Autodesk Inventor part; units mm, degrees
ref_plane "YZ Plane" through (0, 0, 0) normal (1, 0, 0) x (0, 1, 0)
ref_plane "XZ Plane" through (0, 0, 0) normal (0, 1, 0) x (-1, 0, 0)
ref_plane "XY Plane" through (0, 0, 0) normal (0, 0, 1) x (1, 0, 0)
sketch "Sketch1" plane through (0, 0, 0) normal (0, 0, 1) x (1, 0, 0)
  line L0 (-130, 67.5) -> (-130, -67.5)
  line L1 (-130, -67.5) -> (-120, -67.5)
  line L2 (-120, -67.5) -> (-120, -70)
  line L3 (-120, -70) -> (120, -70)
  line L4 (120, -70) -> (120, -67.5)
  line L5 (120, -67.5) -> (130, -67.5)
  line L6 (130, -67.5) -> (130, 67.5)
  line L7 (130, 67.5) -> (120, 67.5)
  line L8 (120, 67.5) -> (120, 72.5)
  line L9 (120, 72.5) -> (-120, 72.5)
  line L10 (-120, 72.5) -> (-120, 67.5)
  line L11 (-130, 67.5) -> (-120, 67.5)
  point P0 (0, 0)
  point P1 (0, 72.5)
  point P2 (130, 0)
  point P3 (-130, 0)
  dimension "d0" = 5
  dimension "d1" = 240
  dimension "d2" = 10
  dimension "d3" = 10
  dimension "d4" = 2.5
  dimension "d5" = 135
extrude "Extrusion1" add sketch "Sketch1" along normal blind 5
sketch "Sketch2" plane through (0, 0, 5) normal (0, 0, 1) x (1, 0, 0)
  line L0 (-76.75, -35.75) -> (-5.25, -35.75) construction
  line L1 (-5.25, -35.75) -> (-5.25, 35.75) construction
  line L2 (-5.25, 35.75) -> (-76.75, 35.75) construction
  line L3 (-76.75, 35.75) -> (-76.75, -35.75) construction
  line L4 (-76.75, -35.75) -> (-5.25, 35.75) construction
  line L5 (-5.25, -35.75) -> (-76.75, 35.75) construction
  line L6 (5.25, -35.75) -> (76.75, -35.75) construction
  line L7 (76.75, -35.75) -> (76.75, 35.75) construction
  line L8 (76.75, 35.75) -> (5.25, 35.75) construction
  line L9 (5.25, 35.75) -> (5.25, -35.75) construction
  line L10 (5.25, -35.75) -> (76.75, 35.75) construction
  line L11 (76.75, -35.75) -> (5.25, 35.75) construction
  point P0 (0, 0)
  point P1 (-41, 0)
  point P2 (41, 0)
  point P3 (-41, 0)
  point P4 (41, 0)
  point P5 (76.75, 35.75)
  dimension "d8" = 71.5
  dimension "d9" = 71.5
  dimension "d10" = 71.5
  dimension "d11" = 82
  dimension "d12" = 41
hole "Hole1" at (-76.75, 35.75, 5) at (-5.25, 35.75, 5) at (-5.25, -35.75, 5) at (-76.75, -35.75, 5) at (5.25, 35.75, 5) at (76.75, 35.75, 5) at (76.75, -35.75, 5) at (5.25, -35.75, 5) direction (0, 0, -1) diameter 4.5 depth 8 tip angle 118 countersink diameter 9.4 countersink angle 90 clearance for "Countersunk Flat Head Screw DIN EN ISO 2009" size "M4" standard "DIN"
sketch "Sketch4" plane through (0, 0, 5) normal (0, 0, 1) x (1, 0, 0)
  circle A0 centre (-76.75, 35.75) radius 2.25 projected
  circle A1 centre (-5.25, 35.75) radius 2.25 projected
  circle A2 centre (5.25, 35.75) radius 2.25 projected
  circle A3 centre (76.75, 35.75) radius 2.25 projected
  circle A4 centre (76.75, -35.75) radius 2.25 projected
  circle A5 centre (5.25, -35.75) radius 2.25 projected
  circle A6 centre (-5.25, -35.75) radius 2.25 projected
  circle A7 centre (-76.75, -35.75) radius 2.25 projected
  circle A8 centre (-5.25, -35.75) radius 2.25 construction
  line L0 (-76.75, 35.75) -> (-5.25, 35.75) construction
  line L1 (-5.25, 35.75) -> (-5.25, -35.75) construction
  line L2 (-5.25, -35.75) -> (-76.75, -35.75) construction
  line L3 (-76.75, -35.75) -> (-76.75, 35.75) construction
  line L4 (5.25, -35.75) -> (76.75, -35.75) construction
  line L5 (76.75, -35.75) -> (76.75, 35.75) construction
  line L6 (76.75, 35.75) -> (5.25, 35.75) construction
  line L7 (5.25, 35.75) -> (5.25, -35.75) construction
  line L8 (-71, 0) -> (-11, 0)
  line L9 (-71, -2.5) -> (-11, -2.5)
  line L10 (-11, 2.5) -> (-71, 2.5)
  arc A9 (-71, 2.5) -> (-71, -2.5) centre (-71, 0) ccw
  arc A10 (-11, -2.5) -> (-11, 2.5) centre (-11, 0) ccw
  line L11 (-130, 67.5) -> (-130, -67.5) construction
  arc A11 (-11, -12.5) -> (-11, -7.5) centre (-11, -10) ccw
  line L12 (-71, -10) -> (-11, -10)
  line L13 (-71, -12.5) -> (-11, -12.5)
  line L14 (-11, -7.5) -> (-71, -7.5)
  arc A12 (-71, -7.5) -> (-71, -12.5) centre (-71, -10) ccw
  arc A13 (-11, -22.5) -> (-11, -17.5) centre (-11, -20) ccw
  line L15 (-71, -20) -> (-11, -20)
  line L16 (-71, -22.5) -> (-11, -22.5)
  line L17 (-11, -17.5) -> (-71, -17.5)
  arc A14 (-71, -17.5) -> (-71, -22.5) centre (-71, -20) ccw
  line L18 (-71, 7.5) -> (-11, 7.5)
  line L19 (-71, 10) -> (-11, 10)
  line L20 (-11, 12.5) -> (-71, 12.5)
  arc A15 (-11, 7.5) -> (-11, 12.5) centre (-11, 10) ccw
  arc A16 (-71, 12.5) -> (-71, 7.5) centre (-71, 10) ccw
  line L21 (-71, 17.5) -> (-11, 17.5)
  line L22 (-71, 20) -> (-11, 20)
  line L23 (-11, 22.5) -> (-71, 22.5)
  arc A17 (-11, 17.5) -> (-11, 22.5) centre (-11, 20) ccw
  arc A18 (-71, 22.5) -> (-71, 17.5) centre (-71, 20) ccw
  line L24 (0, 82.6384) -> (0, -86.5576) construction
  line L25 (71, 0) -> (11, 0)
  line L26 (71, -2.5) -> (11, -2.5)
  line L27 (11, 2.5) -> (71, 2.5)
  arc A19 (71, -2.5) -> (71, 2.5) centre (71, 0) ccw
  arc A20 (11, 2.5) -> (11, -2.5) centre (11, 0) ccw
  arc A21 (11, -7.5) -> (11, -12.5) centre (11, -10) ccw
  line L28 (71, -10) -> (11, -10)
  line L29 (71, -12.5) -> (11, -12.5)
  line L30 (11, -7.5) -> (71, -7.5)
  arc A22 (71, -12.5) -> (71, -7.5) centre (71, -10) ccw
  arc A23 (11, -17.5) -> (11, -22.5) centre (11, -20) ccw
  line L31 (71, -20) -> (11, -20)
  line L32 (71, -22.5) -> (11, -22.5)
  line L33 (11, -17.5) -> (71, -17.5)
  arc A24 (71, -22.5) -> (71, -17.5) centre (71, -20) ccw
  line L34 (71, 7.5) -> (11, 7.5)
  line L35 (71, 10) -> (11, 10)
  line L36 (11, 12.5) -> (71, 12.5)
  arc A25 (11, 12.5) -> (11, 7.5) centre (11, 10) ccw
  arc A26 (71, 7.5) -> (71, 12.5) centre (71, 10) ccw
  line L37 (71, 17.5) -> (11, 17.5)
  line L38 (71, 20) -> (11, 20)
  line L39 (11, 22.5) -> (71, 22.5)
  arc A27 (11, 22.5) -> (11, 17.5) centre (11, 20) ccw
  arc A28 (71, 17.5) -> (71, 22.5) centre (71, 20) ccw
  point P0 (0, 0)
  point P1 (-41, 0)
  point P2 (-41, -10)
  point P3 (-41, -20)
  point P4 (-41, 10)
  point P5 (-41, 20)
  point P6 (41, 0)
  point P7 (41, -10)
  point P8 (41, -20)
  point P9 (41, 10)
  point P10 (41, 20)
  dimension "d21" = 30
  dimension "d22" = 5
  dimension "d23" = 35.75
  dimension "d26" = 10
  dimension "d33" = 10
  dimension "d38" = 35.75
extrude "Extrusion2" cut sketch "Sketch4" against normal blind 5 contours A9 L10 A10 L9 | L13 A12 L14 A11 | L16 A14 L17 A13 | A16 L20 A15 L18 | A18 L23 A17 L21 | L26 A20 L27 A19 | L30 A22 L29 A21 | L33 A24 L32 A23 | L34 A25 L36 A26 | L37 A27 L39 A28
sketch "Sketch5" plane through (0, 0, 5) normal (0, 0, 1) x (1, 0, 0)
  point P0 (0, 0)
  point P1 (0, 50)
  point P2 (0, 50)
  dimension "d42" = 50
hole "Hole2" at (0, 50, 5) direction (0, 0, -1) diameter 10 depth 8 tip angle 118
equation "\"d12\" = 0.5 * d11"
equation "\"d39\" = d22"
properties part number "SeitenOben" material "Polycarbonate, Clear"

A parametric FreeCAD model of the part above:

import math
import FreeCAD as App
import Part
import Sketcher
from FreeCAD import Vector

doc = App.newDocument("Part")
body = doc.addObject("PartDesign::Body", "Body")

sketch1 = body.newObject("Sketcher::SketchObject", "Sketch")
sketch1.AttachmentSupport = (doc.getObject("XY_Plane"), [""])
sketch1.MapMode = "FlatFace"
sketch1.addGeometry([
    Part.LineSegment(Vector(-120, 67.5, 0), Vector(-130, 67.5, 0)),
    Part.LineSegment(Vector(-130, 67.5, 0), Vector(-130, -67.5, 0)),
    Part.LineSegment(Vector(-130, -67.5, 0), Vector(-120, -67.5, 0)),
    Part.LineSegment(Vector(-120, -67.5, 0), Vector(-120, -70, 0)),
    Part.LineSegment(Vector(-120, -70, 0), Vector(120, -70, 0)),
    Part.LineSegment(Vector(120, -70, 0), Vector(120, -67.5, 0)),
    Part.LineSegment(Vector(120, -67.5, 0), Vector(130, -67.5, 0)),
    Part.LineSegment(Vector(130, -67.5, 0), Vector(130, 67.5, 0)),
    Part.LineSegment(Vector(130, 67.5, 0), Vector(120, 67.5, 0)),
    Part.LineSegment(Vector(120, 67.5, 0), Vector(120, 72.5, 0)),
    Part.LineSegment(Vector(120, 72.5, 0), Vector(-120, 72.5, 0)),
    Part.LineSegment(Vector(-120, 72.5, 0), Vector(-120, 67.5, 0)),
], False)
sketch1.addConstraint([
    Sketcher.Constraint("Coincident", 0, 2, 1, 1),
    Sketcher.Constraint("Coincident", 1, 2, 2, 1),
    Sketcher.Constraint("Coincident", 2, 2, 3, 1),
    Sketcher.Constraint("Coincident", 3, 2, 4, 1),
    Sketcher.Constraint("Coincident", 4, 2, 5, 1),
    Sketcher.Constraint("Coincident", 5, 2, 6, 1),
    Sketcher.Constraint("Coincident", 6, 2, 7, 1),
    Sketcher.Constraint("Coincident", 7, 2, 8, 1),
    Sketcher.Constraint("Coincident", 8, 2, 9, 1),
    Sketcher.Constraint("Coincident", 9, 2, 10, 1),
    Sketcher.Constraint("Coincident", 10, 2, 11, 1),
    Sketcher.Constraint("Coincident", 11, 2, 0, 1),
    Sketcher.Constraint("Horizontal", 0),
    Sketcher.Constraint("Vertical", 1),
    Sketcher.Constraint("Horizontal", 2),
    Sketcher.Constraint("Vertical", 3),
    Sketcher.Constraint("Horizontal", 4),
    Sketcher.Constraint("Vertical", 5),
    Sketcher.Constraint("Horizontal", 6),
    Sketcher.Constraint("Vertical", 7),
    Sketcher.Constraint("Horizontal", 8),
    Sketcher.Constraint("Vertical", 9),
    Sketcher.Constraint("Horizontal", 10),
    Sketcher.Constraint("Vertical", 11),
    Sketcher.Constraint("Symmetric", 0, 2, 6, 2, -1, 1),
    Sketcher.Constraint("Symmetric", 2, 2, 8, 2, -1, 1),
    Sketcher.Constraint("Symmetric", 2, 2, 5, 2, -2),
    Sketcher.Constraint("Vertical", 3, 2, 10, 2),
    Sketcher.Constraint("DistanceX", 0, 2, 0, 1, 10.0),
    Sketcher.Constraint("DistanceX", 4, 1, 4, 2, 240.0),
    Sketcher.Constraint("DistanceY", 1, 2, 1, 1, 135.0),
    Sketcher.Constraint("DistanceY", 9, 1, 9, 2, 5.0),
    Sketcher.Constraint("DistanceY", 3, 2, 3, 1, 2.5),
])
pad1 = body.newObject("PartDesign::Pad", "Pad")
pad1.Profile = sketch1
pad1.Length = 5

sketch2 = body.newObject("Sketcher::SketchObject", "Sketch001")
sketch2.AttachmentSupport = (doc.getObject("XY_Plane"), [""])
sketch2.MapMode = "FlatFace"
sketch2.AttachmentOffset = App.Placement(Vector(0, 0, 5), App.Rotation())
sketch2.addGeometry([
    Part.Circle(Vector(-76.8, 35.8, 0), Vector(0, 0, 1), 2.2),
    Part.Circle(Vector(-5.2, 35.8, 0), Vector(0, 0, 1), 2.2),
    Part.Circle(Vector(-5.2, -35.8, 0), Vector(0, 0, 1), 2.2),
    Part.Circle(Vector(-76.8, -35.8, 0), Vector(0, 0, 1), 2.2),
    Part.Circle(Vector(5.2, 35.8, 0), Vector(0, 0, 1), 2.2),
    Part.Circle(Vector(76.8, 35.8, 0), Vector(0, 0, 1), 2.2),
    Part.Circle(Vector(76.8, -35.8, 0), Vector(0, 0, 1), 2.2),
    Part.Circle(Vector(5.2, -35.8, 0), Vector(0, 0, 1), 2.2),
], False)
sketch2.addConstraint([
    Sketcher.Constraint("Equal", 0, 1),
    Sketcher.Constraint("Equal", 1, 2),
    Sketcher.Constraint("Equal", 2, 3),
    Sketcher.Constraint("Equal", 3, 4),
    Sketcher.Constraint("Equal", 4, 5),
    Sketcher.Constraint("Equal", 5, 6),
    Sketcher.Constraint("Equal", 6, 7),
    Sketcher.Constraint("Symmetric", 2, 3, 4, 3, -1, 1),
    Sketcher.Constraint("Symmetric", 3, 3, 5, 3, -1, 1),
    Sketcher.Constraint("Symmetric", 0, 3, 6, 3, -1, 1),
    Sketcher.Constraint("Symmetric", 1, 3, 7, 3, -1, 1),
    Sketcher.Constraint("Symmetric", 1, 3, 4, 3, -2),
    Sketcher.Constraint("Symmetric", 0, 3, 5, 3, -2),
    Sketcher.Constraint("Horizontal", 0, 3, 1, 3),
    Sketcher.Constraint("Diameter", 0, 4.5),
    Sketcher.Constraint("DistanceX", 0, 3, 4, 3, 82.0),
    Sketcher.Constraint("DistanceX", 0, 3, 1, 3, 71.5),
    Sketcher.Constraint("DistanceY", 2, 3, 1, 3, 71.5),
])
doc.recompute()
hole = body.newObject("PartDesign::Hole", "Hole")
hole.Profile = sketch2
hole.ThreadType = "None"
hole.Diameter = 4.5
hole.DepthType = "Dimension"
hole.Depth = 8
hole.DrillPoint = "Angled"
hole.DrillPointAngle = 118
hole.HoleCutType = "Countersink"
hole.HoleCutDiameter = 9.4
hole.HoleCutCountersinkAngle = 90

sketch3 = body.newObject("Sketcher::SketchObject", "Sketch002")
sketch3.AttachmentSupport = (doc.getObject("XY_Plane"), [""])
sketch3.MapMode = "FlatFace"
sketch3.AttachmentOffset = App.Placement(Vector(0, 0, 5), App.Rotation())
sketch3.addGeometry([
    Part.ArcOfCircle(Part.Circle(Vector(-71, 0, 0), Vector(0, 0, 1), 2.5), math.radians(90), math.radians(270)),
    Part.LineSegment(Vector(-71, -2.5, 0), Vector(-11, -2.5, 0)),
    Part.ArcOfCircle(Part.Circle(Vector(-11, 0, 0), Vector(0, 0, 1), 2.5), math.radians(-90), math.radians(90)),
    Part.LineSegment(Vector(-11, 2.5, 0), Vector(-71, 2.5, 0)),
    Part.LineSegment(Vector(-71, -12.5, 0), Vector(-11, -12.5, 0)),
    Part.ArcOfCircle(Part.Circle(Vector(-11, -10, 0), Vector(0, 0, 1), 2.5), math.radians(-90), math.radians(90)),
    Part.LineSegment(Vector(-11, -7.5, 0), Vector(-71, -7.5, 0)),
    Part.ArcOfCircle(Part.Circle(Vector(-71, -10, 0), Vector(0, 0, 1), 2.5), math.radians(90), math.radians(270)),
    Part.LineSegment(Vector(-71, -22.5, 0), Vector(-11, -22.5, 0)),
    Part.ArcOfCircle(Part.Circle(Vector(-11, -20, 0), Vector(0, 0, 1), 2.5), math.radians(-90), math.radians(90)),
    Part.LineSegment(Vector(-11, -17.5, 0), Vector(-71, -17.5, 0)),
    Part.ArcOfCircle(Part.Circle(Vector(-71, -20, 0), Vector(0, 0, 1), 2.5), math.radians(90), math.radians(270)),
    Part.ArcOfCircle(Part.Circle(Vector(-71, 10, 0), Vector(0, 0, 1), 2.5), math.radians(90), math.radians(270)),
    Part.LineSegment(Vector(-71, 7.5, 0), Vector(-11, 7.5, 0)),
    Part.ArcOfCircle(Part.Circle(Vector(-11, 10, 0), Vector(0, 0, 1), 2.5), math.radians(-90), math.radians(90)),
    Part.LineSegment(Vector(-11, 12.5, 0), Vector(-71, 12.5, 0)),
    Part.ArcOfCircle(Part.Circle(Vector(-71, 20, 0), Vector(0, 0, 1), 2.5), math.radians(90), math.radians(270)),
    Part.LineSegment(Vector(-71, 17.5, 0), Vector(-11, 17.5, 0)),
    Part.ArcOfCircle(Part.Circle(Vector(-11, 20, 0), Vector(0, 0, 1), 2.5), math.radians(-90), math.radians(90)),
    Part.LineSegment(Vector(-11, 22.5, 0), Vector(-71, 22.5, 0)),
    Part.LineSegment(Vector(11, -2.5, 0), Vector(71, -2.5, 0)),
    Part.ArcOfCircle(Part.Circle(Vector(71, 0, 0), Vector(0, 0, 1), 2.5), math.radians(-90), math.radians(90)),
    Part.LineSegment(Vector(71, 2.5, 0), Vector(11, 2.5, 0)),
    Part.ArcOfCircle(Part.Circle(Vector(11, 0, 0), Vector(0, 0, 1), 2.5), math.radians(90), math.radians(270)),
    Part.LineSegment(Vector(71, -7.5, 0), Vector(11, -7.5, 0)),
    Part.ArcOfCircle(Part.Circle(Vector(11, -10, 0), Vector(0, 0, 1), 2.5), math.radians(90), math.radians(270)),
    Part.LineSegment(Vector(11, -12.5, 0), Vector(71, -12.5, 0)),
    Part.ArcOfCircle(Part.Circle(Vector(71, -10, 0), Vector(0, 0, 1), 2.5), math.radians(-90), math.radians(90)),
    Part.LineSegment(Vector(71, -17.5, 0), Vector(11, -17.5, 0)),
    Part.ArcOfCircle(Part.Circle(Vector(11, -20, 0), Vector(0, 0, 1), 2.5), math.radians(90), math.radians(270)),
    Part.LineSegment(Vector(11, -22.5, 0), Vector(71, -22.5, 0)),
    Part.ArcOfCircle(Part.Circle(Vector(71, -20, 0), Vector(0, 0, 1), 2.5), math.radians(-90), math.radians(90)),
    Part.LineSegment(Vector(11, 7.5, 0), Vector(71, 7.5, 0)),
    Part.ArcOfCircle(Part.Circle(Vector(71, 10, 0), Vector(0, 0, 1), 2.5), math.radians(-90), math.radians(90)),
    Part.LineSegment(Vector(71, 12.5, 0), Vector(11, 12.5, 0)),
    Part.ArcOfCircle(Part.Circle(Vector(11, 10, 0), Vector(0, 0, 1), 2.5), math.radians(90), math.radians(270)),
    Part.LineSegment(Vector(11, 17.5, 0), Vector(71, 17.5, 0)),
    Part.ArcOfCircle(Part.Circle(Vector(71, 20, 0), Vector(0, 0, 1), 2.5), math.radians(-90), math.radians(90)),
    Part.LineSegment(Vector(71, 22.5, 0), Vector(11, 22.5, 0)),
    Part.ArcOfCircle(Part.Circle(Vector(11, 20, 0), Vector(0, 0, 1), 2.5), math.radians(90), math.radians(270)),
], False)
sketch3.addConstraint([
    Sketcher.Constraint("Tangent", 0, 2, 1, 1),
    Sketcher.Constraint("Tangent", 1, 2, 2, 1),
    Sketcher.Constraint("Tangent", 2, 2, 3, 1),
    Sketcher.Constraint("Tangent", 3, 2, 0, 1),
    Sketcher.Constraint("Tangent", 4, 2, 5, 1),
    Sketcher.Constraint("Tangent", 5, 2, 6, 1),
    Sketcher.Constraint("Tangent", 6, 2, 7, 1),
    Sketcher.Constraint("Tangent", 7, 2, 4, 1),
    Sketcher.Constraint("Tangent", 8, 2, 9, 1),
    Sketcher.Constraint("Tangent", 9, 2, 10, 1),
    Sketcher.Constraint("Tangent", 10, 2, 11, 1),
    Sketcher.Constraint("Tangent", 11, 2, 8, 1),
    Sketcher.Constraint("Tangent", 12, 2, 13, 1),
    Sketcher.Constraint("Tangent", 13, 2, 14, 1),
    Sketcher.Constraint("Tangent", 14, 2, 15, 1),
    Sketcher.Constraint("Tangent", 15, 2, 12, 1),
    Sketcher.Constraint("Tangent", 16, 2, 17, 1),
    Sketcher.Constraint("Tangent", 17, 2, 18, 1),
    Sketcher.Constraint("Tangent", 18, 2, 19, 1),
    Sketcher.Constraint("Tangent", 19, 2, 16, 1),
    Sketcher.Constraint("Tangent", 20, 2, 21, 1),
    Sketcher.Constraint("Tangent", 21, 2, 22, 1),
    Sketcher.Constraint("Tangent", 22, 2, 23, 1),
    Sketcher.Constraint("Tangent", 23, 2, 20, 1),
    Sketcher.Constraint("Tangent", 24, 2, 25, 1),
    Sketcher.Constraint("Tangent", 25, 2, 26, 1),
    Sketcher.Constraint("Tangent", 26, 2, 27, 1),
    Sketcher.Constraint("Tangent", 27, 2, 24, 1),
    Sketcher.Constraint("Tangent", 28, 2, 29, 1),
    Sketcher.Constraint("Tangent", 29, 2, 30, 1),
    Sketcher.Constraint("Tangent", 30, 2, 31, 1),
    Sketcher.Constraint("Tangent", 31, 2, 28, 1),
    Sketcher.Constraint("Tangent", 32, 2, 33, 1),
    Sketcher.Constraint("Tangent", 33, 2, 34, 1),
    Sketcher.Constraint("Tangent", 34, 2, 35, 1),
    Sketcher.Constraint("Tangent", 35, 2, 32, 1),
    Sketcher.Constraint("Tangent", 36, 2, 37, 1),
    Sketcher.Constraint("Tangent", 37, 2, 38, 1),
    Sketcher.Constraint("Tangent", 38, 2, 39, 1),
    Sketcher.Constraint("Tangent", 39, 2, 36, 1),
    Sketcher.Constraint("Horizontal", 1),
    Sketcher.Constraint("Horizontal", 3),
    Sketcher.Constraint("Horizontal", 4),
    Sketcher.Constraint("Horizontal", 6),
    Sketcher.Constraint("Horizontal", 8),
    Sketcher.Constraint("Horizontal", 10),
    Sketcher.Constraint("Horizontal", 13),
    Sketcher.Constraint("Horizontal", 15),
    Sketcher.Constraint("Horizontal", 17),
    Sketcher.Constraint("Horizontal", 19),
    Sketcher.Constraint("Horizontal", 20),
    Sketcher.Constraint("Horizontal", 22),
    Sketcher.Constraint("Horizontal", 24),
    Sketcher.Constraint("Horizontal", 26),
    Sketcher.Constraint("Horizontal", 28),
    Sketcher.Constraint("Horizontal", 30),
    Sketcher.Constraint("Horizontal", 32),
    Sketcher.Constraint("Horizontal", 34),
    Sketcher.Constraint("Horizontal", 36),
    Sketcher.Constraint("Horizontal", 38),
    Sketcher.Constraint("Equal", 2, 5),
    Sketcher.Constraint("Equal", 7, 9),
    Sketcher.Constraint("Equal", 11, 12),
    Sketcher.Constraint("Equal", 14, 16),
    Sketcher.Constraint("Equal", 18, 21),
    Sketcher.Constraint("Equal", 23, 25),
    Sketcher.Constraint("Equal", 27, 29),
    Sketcher.Constraint("Equal", 31, 33),
    Sketcher.Constraint("Equal", 35, 37),
    Sketcher.Constraint("Symmetric", 0, 3, 21, 3, -1, 1),
    Sketcher.Constraint("Symmetric", 14, 3, 25, 3, -1, 1),
    Sketcher.Constraint("Symmetric", 18, 3, 29, 3, -1, 1),
    Sketcher.Constraint("Symmetric", 7, 3, 33, 3, -1, 1),
    Sketcher.Constraint("Symmetric", 11, 3, 37, 3, -1, 1),
    Sketcher.Constraint("Symmetric", 2, 3, 23, 3, -2),
    Sketcher.Constraint("Symmetric", 5, 3, 25, 3, -2),
    Sketcher.Constraint("Symmetric", 9, 3, 29, 3, -2),
    Sketcher.Constraint("Vertical", 2, 3, 5, 3),
    Sketcher.Constraint("Vertical", 0, 3, 7, 3),
    Sketcher.Constraint("Vertical", 5, 3, 9, 3),
    Sketcher.Constraint("Vertical", 7, 3, 11, 3),
    Sketcher.Constraint("Vertical", 11, 3, 12, 3),
    Sketcher.Constraint("Vertical", 12, 3, 16, 3),
    Sketcher.Constraint("Vertical", 21, 3, 27, 3),
    Sketcher.Constraint("Vertical", 27, 3, 31, 3),
    Sketcher.Constraint("Vertical", 29, 3, 35, 3),
    Sketcher.Constraint("Vertical", 35, 3, 39, 3),
    Sketcher.Constraint("Radius", 0, 2.5),
    Sketcher.Constraint("DistanceY", 5, 3, -1, 1, 10.0),
    Sketcher.Constraint("DistanceY", 9, 3, 5, 3, 10.0),
    Sketcher.Constraint("DistanceX", 1, 1, 1, 2, 60.0),
    Sketcher.Constraint("DistanceX", 0, 3, -1, 1, 71.0),
])
pocket1 = body.newObject("PartDesign::Pocket", "Pocket")
pocket1.Profile = sketch3
pocket1.Length = 5

sketch4 = body.newObject("Sketcher::SketchObject", "Sketch003")
sketch4.AttachmentSupport = (doc.getObject("XY_Plane"), [""])
sketch4.MapMode = "FlatFace"
sketch4.AttachmentOffset = App.Placement(Vector(0, 0, 5), App.Rotation())
sketch4.addGeometry(Part.Circle(Vector(0, 50, 0), Vector(0, 0, 1), 5), False)
sketch4.addConstraint([
    Sketcher.Constraint("PointOnObject", 0, 3, -2),
    Sketcher.Constraint("Diameter", 0, 10.0),
    Sketcher.Constraint("DistanceY", -1, 1, 0, 3, 50.0),
])
doc.recompute()
hole2 = body.newObject("PartDesign::Hole", "Hole001")
hole2.Profile = sketch4
hole2.ThreadType = "None"
hole2.Diameter = 10
hole2.DepthType = "Dimension"
hole2.Depth = 8
hole2.DrillPoint = "Angled"
hole2.DrillPointAngle = 118

doc.recompute()
